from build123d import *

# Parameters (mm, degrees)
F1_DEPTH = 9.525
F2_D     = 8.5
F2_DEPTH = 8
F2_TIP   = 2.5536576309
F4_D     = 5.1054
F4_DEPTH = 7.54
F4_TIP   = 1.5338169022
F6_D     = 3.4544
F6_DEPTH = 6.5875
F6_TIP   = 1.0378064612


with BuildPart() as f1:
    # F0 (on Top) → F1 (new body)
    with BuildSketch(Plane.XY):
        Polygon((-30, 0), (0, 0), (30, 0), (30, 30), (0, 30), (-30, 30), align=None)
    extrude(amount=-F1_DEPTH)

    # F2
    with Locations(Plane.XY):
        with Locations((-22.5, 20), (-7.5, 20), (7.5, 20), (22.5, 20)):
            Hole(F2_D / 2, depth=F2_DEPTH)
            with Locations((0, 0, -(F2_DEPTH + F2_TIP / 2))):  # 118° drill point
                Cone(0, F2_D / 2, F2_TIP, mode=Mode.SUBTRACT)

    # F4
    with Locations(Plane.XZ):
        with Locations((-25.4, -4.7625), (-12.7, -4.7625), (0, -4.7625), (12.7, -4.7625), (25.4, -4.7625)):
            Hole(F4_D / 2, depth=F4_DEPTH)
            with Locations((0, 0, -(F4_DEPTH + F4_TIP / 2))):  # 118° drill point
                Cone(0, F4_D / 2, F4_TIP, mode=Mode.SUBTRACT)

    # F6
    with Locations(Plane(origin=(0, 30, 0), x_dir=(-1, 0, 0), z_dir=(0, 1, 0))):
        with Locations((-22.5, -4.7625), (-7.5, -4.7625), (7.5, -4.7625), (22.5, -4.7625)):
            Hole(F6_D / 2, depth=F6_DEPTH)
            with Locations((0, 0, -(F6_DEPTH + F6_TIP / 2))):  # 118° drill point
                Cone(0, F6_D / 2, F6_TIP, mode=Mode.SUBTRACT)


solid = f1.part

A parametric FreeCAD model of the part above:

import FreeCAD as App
import Part
import Sketcher

V = App.Vector
Q = App.Units.Quantity

doc = App.newDocument("Part")
params = doc.addObject("Spreadsheet::Sheet", "Params")
for row, (alias, value) in enumerate([
    ("sketch1_width", "60 mm"),
    ("sketch1_height", "30 mm"),
    ("pad1_length", "9.525 mm"),
    ("sketch2_diameter", "8.5 mm"),
    ("hole_diameter", "8.5 mm"),
    ("hole_depth", "8 mm"),
    ("hole2_diameter", "5.1054 mm"),
    ("hole2_depth", "7.54 mm"),
    ("hole3_diameter", "3.4544 mm"),
    ("hole3_depth", "6.5875 mm"),
], start=1):
    params.set(f"A{row}", alias)
    params.set(f"B{row}", "=" + value)
    params.setAlias(f"B{row}", alias)

body = doc.addObject("PartDesign::Body", "Body")

# Sketch on XY plane
sketch1 = body.newObject("Sketcher::SketchObject", "Sketch")
sketch1.AttachmentSupport = (doc.getObject("XY_Plane"), [""])
sketch1.MapMode = "FlatFace"
sketch1.addGeometry(Part.LineSegment(V(-30, 0, 0), V(30, 0, 0)), False)
sketch1.addGeometry(Part.LineSegment(V(30, 0, 0), V(30, 30, 0)), False)
sketch1.addGeometry(Part.LineSegment(V(30, 30, 0), V(-30, 30, 0)), False)
sketch1.addGeometry(Part.LineSegment(V(-30, 30, 0), V(-30, 0, 0)), False)
sketch1.addConstraint(Sketcher.Constraint("Coincident", 0, 2, 1, 1))
sketch1.addConstraint(Sketcher.Constraint("Coincident", 1, 2, 2, 1))
sketch1.addConstraint(Sketcher.Constraint("Coincident", 2, 2, 3, 1))
sketch1.addConstraint(Sketcher.Constraint("Coincident", 3, 2, 0, 1))
sketch1.addConstraint(Sketcher.Constraint("Horizontal", 0))
sketch1.addConstraint(Sketcher.Constraint("Vertical", 1))
sketch1.addConstraint(Sketcher.Constraint("Horizontal", 2))
sketch1.addConstraint(Sketcher.Constraint("Vertical", 3))
sketch1.addConstraint(Sketcher.Constraint("Symmetric", 0, 2, 3, 2, -1, 1))
sketch1.addConstraint(Sketcher.Constraint("DistanceX", 0, 1, 0, 2, Q("60 mm")))
sketch1.addConstraint(Sketcher.Constraint("DistanceY", 1, 1, 1, 2, Q("30 mm")))
sketch1.setExpression("Constraints[9]", "Params.sketch1_width")
sketch1.setExpression("Constraints[10]", "Params.sketch1_height")
pad1 = body.newObject("PartDesign::Pad", "Pad")
pad1.Profile = sketch1
pad1.setExpression("Length", "Params.pad1_length")
pad1.Reversed = True

# Sketch on XY plane
sketch2 = body.newObject("Sketcher::SketchObject", "Sketch001")
sketch2.AttachmentSupport = (doc.getObject("XY_Plane"), [""])
sketch2.MapMode = "FlatFace"
sketch2.addGeometry(Part.Circle(V(-22.5, 20, 0), V(0, 0, 1), 4.2), False)
sketch2.addGeometry(Part.Circle(V(-7.5, 20, 0), V(0, 0, 1), 4.2), False)
sketch2.addGeometry(Part.Circle(V(7.5, 20, 0), V(0, 0, 1), 4.2), False)
sketch2.addGeometry(Part.Circle(V(22.5, 20, 0), V(0, 0, 1), 4.2), False)
sketch2.addConstraint(Sketcher.Constraint("Equal", 0, 1))
sketch2.addConstraint(Sketcher.Constraint("Equal", 1, 2))
sketch2.addConstraint(Sketcher.Constraint("Equal", 2, 3))
sketch2.addConstraint(Sketcher.Constraint("Symmetric", 1, 3, 2, 3, -2))
sketch2.addConstraint(Sketcher.Constraint("Symmetric", 0, 3, 3, 3, -2))
sketch2.addConstraint(Sketcher.Constraint("Horizontal", 0, 3, 1, 3))
sketch2.addConstraint(Sketcher.Constraint("Diameter", 0, Q("8.5 mm")))
sketch2.addConstraint(Sketcher.Constraint("DistanceY", -1, 1, 0, 3, Q("20 mm")))
sketch2.addConstraint(Sketcher.Constraint("DistanceX", 0, 3, 1, 3, Q("15 mm")))
sketch2.addConstraint(Sketcher.Constraint("DistanceX", 1, 3, 2, 3, Q("15 mm")))
sketch2.setExpression("Constraints[6]", "Params.sketch2_diameter")
doc.recompute()
hole = body.newObject("PartDesign::Hole", "Hole")
hole.Profile = sketch2
hole.ThreadType = "None"
hole.setExpression("Diameter", "Params.hole_diameter")
hole.DepthType = "Dimension"
hole.setExpression("Depth", "Params.hole_depth")
hole.DrillPoint = "Angled"
hole.DrillPointAngle = 118

# Sketch on XZ plane
sketch3 = body.newObject("Sketcher::SketchObject", "Sketch002")
sketch3.AttachmentSupport = (doc.getObject("XZ_Plane"), [""])
sketch3.MapMode = "FlatFace"
sketch3.addGeometry(Part.Circle(V(-25.4, -4.8, 0), V(0, 0, 1), 2.6), False)
sketch3.addGeometry(Part.Circle(V(-12.7, -4.8, 0), V(0, 0, 1), 2.6), False)
sketch3.addGeometry(Part.Circle(V(0, -4.8, 0), V(0, 0, 1), 2.6), False)
sketch3.addGeometry(Part.Circle(V(12.7, -4.8, 0), V(0, 0, 1), 2.6), False)
sketch3.addGeometry(Part.Circle(V(25.4, -4.8, 0), V(0, 0, 1), 2.6), False)
sketch3.addConstraint(Sketcher.Constraint("Equal", 0, 1))
sketch3.addConstraint(Sketcher.Constraint("Equal", 1, 2))
sketch3.addConstraint(Sketcher.Constraint("Equal", 2, 3))
sketch3.addConstraint(Sketcher.Constraint("Equal", 3, 4))
sketch3.addConstraint(Sketcher.Constraint("Symmetric", 1, 3, 3, 3, -2))
sketch3.addConstraint(Sketcher.Constraint("Symmetric", 0, 3, 4, 3, -2))
sketch3.addConstraint(Sketcher.Constraint("PointOnObject", 2, 3, -2))
sketch3.addConstraint(Sketcher.Constraint("Horizontal", 0, 3, 1, 3))
sketch3.addConstraint(Sketcher.Constraint("Horizontal", 1, 3, 2, 3))
sketch3.addConstraint(Sketcher.Constraint("Diameter", 0, Q("5.1054 mm")))
sketch3.addConstraint(Sketcher.Constraint("DistanceX", 0, 3, -1, 1, Q("25.4 mm")))
sketch3.addConstraint(Sketcher.Constraint("DistanceX", 1, 3, -1, 1, Q("12.7 mm")))
sketch3.addConstraint(Sketcher.Constraint("DistanceY", 0, 3, -1, 1, Q("4.7625 mm")))
doc.recompute()
hole2 = body.newObject("PartDesign::Hole", "Hole001")
hole2.Profile = sketch3
hole2.ThreadType = "None"
hole2.setExpression("Diameter", "Params.hole2_diameter")
hole2.DepthType = "Dimension"
hole2.setExpression("Depth", "Params.hole2_depth")
hole2.DrillPoint = "Angled"
hole2.DrillPointAngle = 118

# Sketch on XZ plane
sketch4 = body.newObject("Sketcher::SketchObject", "Sketch003")
sketch4.AttachmentSupport = (doc.getObject("XZ_Plane"), [""])
sketch4.MapMode = "FlatFace"
sketch4.AttachmentOffset = App.Placement(V(0, 0, -30), App.Rotation())
sketch4.addGeometry(Part.Circle(V(22.5, -4.8, 0), V(0, 0, 1), 1.7), False)
sketch4.addGeometry(Part.Circle(V(7.5, -4.8, 0), V(0, 0, 1), 1.7), False)
sketch4.addGeometry(Part.Circle(V(-7.5, -4.8, 0), V(0, 0, 1), 1.7), False)
sketch4.addGeometry(Part.Circle(V(-22.5, -4.8, 0), V(0, 0, 1), 1.7), False)
sketch4.addConstraint(Sketcher.Constraint("Equal", 0, 1))
sketch4.addConstraint(Sketcher.Constraint("Equal", 1, 2))
sketch4.addConstraint(Sketcher.Constraint("Equal", 2, 3))
sketch4.addConstraint(Sketcher.Constraint("Symmetric", 1, 3, 2, 3, -2))
sketch4.addConstraint(Sketcher.Constraint("Symmetric", 0, 3, 3, 3, -2))
sketch4.addConstraint(Sketcher.Constraint("Horizontal", 0, 3, 1, 3))
sketch4.addConstraint(Sketcher.Constraint("DistanceX", 1, 3, 0, 3, Q("15 mm")))
sketch4.addConstraint(Sketcher.Constraint("DistanceX", 2, 3, 1, 3, Q("15 mm")))
sketch4.addConstraint(Sketcher.Constraint("Diameter", 0, Q("3.4544 mm")))
sketch4.addConstraint(Sketcher.Constraint("DistanceY", 0, 3, -1, 1, Q("4.7625 mm")))
doc.recompute()
hole3 = body.newObject("PartDesign::Hole", "Hole002")
hole3.Profile = sketch4
hole3.ThreadType = "None"
hole3.setExpression("Diameter", "Params.hole3_diameter")
hole3.DepthType = "Dimension"
hole3.setExpression("Depth", "Params.hole3_depth")
hole3.DrillPoint = "Angled"
hole3.DrillPointAngle = 118
hole3.Reversed = True

doc.recompute()
